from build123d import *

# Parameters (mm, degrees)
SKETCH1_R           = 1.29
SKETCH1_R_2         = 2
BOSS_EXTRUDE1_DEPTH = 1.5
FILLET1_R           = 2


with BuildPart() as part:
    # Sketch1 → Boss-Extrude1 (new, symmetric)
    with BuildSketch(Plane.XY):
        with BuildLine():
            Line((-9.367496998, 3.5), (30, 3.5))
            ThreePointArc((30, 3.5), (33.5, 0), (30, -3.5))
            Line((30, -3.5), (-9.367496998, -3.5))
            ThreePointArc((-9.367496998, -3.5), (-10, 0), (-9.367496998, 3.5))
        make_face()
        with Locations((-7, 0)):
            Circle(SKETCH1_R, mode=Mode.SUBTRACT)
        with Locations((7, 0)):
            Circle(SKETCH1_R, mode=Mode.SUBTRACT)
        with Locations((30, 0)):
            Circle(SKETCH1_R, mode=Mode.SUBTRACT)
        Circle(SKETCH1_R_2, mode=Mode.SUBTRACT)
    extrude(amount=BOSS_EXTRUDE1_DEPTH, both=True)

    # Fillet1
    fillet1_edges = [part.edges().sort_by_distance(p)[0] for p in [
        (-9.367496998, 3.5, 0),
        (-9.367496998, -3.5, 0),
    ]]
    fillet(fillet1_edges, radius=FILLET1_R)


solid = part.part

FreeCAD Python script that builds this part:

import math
import FreeCAD as App
import Part
import Sketcher
Q = App.Units.Quantity


def edges_at(feature, points):
    """Names of the edges that pass closest to the given points."""
    edges = feature.Shape.Edges
    near = lambda p: min(range(len(edges)), key=lambda i: edges[i].distToShape(Part.Vertex(*p))[0])
    return sorted({f"Edge{near(p) + 1}" for p in points})

doc = App.newDocument("Part")
body = doc.addObject("PartDesign::Body", "Body")

# Sketch on XY plane
sketch1 = body.newObject("Sketcher::SketchObject", "Sketch")
sketch1.AttachmentSupport = (doc.getObject("XY_Plane"), [""])
sketch1.MapMode = "FlatFace"
sketch1.addGeometry([
    Part.LineSegment(App.Vector(30, 3.5, 0), App.Vector(-9.367497, 3.5, 0)),  # 0
    Part.ArcOfCircle(Part.Circle(App.Vector(0, 0, 0), App.Vector(0, 0, 1), 10), math.radians(159.512685), math.radians(200.487315)),  # 1
    Part.LineSegment(App.Vector(-9.367497, -3.5, 0), App.Vector(30, -3.5, 0)),  # 2
    Part.ArcOfCircle(Part.Circle(App.Vector(30, 0, 0), App.Vector(0, 0, 1), 3.5), math.radians(-90), math.radians(90)),  # 3
    Part.Circle(App.Vector(30, 0, 0), App.Vector(0, 0, 1), 1.29),  # 4
    Part.Circle(App.Vector(7, 0, 0), App.Vector(0, 0, 1), 1.29),  # 5
    Part.Circle(App.Vector(0, 0, 0), App.Vector(0, 0, 1), 2),  # 6
    Part.Circle(App.Vector(-7, 0, 0), App.Vector(0, 0, 1), 1.29),  # 7
], False)
sketch1.addConstraint([
    Sketcher.Constraint("Coincident", 0, 2, 1, 1),
    Sketcher.Constraint("Coincident", 1, 2, 2, 1),
    Sketcher.Constraint("Tangent", 2, 2, 3, 1),
    Sketcher.Constraint("Tangent", 3, 2, 0, 1),
    Sketcher.Constraint("Horizontal", 0),
    Sketcher.Constraint("Horizontal", 2),
    Sketcher.Constraint("Coincident", 1, 3, -1, 1),
    Sketcher.Constraint("Coincident", 6, 3, -1, 1),
    Sketcher.Constraint("Coincident", 4, 3, 3, 3),
    Sketcher.Constraint("Equal", 4, 5),
    Sketcher.Constraint("Equal", 5, 7),
    Sketcher.Constraint("Symmetric", 5, 3, 7, 3, -1, 1),
    Sketcher.Constraint("PointOnObject", 3, 3, -1),
    Sketcher.Constraint("PointOnObject", 5, 3, -1),
    Sketcher.Constraint("Diameter", 6, Q("4 mm")),
    Sketcher.Constraint("Radius", 1, Q("10 mm")),
    Sketcher.Constraint("Radius", 3, Q("3.5 mm")),
    Sketcher.Constraint("Diameter", 4, Q("2.58 mm")),
    Sketcher.Constraint("DistanceX", -1, 1, 3, 3, Q("30 mm")),
    Sketcher.Constraint("DistanceX", -1, 1, 5, 3, Q("7 mm")),
])
pad1 = body.newObject("PartDesign::Pad", "Pad")
pad1.Profile = sketch1
pad1.Length = 3
pad1.Midplane = True
doc.recompute()

fillet = body.newObject("PartDesign::Fillet", "Fillet")
fillet.Base = (pad1, edges_at(pad1, [(-9.367, 3.5, 0), (-9.367, -3.5, 0)]))
fillet.Radius = 2

doc.recompute()
